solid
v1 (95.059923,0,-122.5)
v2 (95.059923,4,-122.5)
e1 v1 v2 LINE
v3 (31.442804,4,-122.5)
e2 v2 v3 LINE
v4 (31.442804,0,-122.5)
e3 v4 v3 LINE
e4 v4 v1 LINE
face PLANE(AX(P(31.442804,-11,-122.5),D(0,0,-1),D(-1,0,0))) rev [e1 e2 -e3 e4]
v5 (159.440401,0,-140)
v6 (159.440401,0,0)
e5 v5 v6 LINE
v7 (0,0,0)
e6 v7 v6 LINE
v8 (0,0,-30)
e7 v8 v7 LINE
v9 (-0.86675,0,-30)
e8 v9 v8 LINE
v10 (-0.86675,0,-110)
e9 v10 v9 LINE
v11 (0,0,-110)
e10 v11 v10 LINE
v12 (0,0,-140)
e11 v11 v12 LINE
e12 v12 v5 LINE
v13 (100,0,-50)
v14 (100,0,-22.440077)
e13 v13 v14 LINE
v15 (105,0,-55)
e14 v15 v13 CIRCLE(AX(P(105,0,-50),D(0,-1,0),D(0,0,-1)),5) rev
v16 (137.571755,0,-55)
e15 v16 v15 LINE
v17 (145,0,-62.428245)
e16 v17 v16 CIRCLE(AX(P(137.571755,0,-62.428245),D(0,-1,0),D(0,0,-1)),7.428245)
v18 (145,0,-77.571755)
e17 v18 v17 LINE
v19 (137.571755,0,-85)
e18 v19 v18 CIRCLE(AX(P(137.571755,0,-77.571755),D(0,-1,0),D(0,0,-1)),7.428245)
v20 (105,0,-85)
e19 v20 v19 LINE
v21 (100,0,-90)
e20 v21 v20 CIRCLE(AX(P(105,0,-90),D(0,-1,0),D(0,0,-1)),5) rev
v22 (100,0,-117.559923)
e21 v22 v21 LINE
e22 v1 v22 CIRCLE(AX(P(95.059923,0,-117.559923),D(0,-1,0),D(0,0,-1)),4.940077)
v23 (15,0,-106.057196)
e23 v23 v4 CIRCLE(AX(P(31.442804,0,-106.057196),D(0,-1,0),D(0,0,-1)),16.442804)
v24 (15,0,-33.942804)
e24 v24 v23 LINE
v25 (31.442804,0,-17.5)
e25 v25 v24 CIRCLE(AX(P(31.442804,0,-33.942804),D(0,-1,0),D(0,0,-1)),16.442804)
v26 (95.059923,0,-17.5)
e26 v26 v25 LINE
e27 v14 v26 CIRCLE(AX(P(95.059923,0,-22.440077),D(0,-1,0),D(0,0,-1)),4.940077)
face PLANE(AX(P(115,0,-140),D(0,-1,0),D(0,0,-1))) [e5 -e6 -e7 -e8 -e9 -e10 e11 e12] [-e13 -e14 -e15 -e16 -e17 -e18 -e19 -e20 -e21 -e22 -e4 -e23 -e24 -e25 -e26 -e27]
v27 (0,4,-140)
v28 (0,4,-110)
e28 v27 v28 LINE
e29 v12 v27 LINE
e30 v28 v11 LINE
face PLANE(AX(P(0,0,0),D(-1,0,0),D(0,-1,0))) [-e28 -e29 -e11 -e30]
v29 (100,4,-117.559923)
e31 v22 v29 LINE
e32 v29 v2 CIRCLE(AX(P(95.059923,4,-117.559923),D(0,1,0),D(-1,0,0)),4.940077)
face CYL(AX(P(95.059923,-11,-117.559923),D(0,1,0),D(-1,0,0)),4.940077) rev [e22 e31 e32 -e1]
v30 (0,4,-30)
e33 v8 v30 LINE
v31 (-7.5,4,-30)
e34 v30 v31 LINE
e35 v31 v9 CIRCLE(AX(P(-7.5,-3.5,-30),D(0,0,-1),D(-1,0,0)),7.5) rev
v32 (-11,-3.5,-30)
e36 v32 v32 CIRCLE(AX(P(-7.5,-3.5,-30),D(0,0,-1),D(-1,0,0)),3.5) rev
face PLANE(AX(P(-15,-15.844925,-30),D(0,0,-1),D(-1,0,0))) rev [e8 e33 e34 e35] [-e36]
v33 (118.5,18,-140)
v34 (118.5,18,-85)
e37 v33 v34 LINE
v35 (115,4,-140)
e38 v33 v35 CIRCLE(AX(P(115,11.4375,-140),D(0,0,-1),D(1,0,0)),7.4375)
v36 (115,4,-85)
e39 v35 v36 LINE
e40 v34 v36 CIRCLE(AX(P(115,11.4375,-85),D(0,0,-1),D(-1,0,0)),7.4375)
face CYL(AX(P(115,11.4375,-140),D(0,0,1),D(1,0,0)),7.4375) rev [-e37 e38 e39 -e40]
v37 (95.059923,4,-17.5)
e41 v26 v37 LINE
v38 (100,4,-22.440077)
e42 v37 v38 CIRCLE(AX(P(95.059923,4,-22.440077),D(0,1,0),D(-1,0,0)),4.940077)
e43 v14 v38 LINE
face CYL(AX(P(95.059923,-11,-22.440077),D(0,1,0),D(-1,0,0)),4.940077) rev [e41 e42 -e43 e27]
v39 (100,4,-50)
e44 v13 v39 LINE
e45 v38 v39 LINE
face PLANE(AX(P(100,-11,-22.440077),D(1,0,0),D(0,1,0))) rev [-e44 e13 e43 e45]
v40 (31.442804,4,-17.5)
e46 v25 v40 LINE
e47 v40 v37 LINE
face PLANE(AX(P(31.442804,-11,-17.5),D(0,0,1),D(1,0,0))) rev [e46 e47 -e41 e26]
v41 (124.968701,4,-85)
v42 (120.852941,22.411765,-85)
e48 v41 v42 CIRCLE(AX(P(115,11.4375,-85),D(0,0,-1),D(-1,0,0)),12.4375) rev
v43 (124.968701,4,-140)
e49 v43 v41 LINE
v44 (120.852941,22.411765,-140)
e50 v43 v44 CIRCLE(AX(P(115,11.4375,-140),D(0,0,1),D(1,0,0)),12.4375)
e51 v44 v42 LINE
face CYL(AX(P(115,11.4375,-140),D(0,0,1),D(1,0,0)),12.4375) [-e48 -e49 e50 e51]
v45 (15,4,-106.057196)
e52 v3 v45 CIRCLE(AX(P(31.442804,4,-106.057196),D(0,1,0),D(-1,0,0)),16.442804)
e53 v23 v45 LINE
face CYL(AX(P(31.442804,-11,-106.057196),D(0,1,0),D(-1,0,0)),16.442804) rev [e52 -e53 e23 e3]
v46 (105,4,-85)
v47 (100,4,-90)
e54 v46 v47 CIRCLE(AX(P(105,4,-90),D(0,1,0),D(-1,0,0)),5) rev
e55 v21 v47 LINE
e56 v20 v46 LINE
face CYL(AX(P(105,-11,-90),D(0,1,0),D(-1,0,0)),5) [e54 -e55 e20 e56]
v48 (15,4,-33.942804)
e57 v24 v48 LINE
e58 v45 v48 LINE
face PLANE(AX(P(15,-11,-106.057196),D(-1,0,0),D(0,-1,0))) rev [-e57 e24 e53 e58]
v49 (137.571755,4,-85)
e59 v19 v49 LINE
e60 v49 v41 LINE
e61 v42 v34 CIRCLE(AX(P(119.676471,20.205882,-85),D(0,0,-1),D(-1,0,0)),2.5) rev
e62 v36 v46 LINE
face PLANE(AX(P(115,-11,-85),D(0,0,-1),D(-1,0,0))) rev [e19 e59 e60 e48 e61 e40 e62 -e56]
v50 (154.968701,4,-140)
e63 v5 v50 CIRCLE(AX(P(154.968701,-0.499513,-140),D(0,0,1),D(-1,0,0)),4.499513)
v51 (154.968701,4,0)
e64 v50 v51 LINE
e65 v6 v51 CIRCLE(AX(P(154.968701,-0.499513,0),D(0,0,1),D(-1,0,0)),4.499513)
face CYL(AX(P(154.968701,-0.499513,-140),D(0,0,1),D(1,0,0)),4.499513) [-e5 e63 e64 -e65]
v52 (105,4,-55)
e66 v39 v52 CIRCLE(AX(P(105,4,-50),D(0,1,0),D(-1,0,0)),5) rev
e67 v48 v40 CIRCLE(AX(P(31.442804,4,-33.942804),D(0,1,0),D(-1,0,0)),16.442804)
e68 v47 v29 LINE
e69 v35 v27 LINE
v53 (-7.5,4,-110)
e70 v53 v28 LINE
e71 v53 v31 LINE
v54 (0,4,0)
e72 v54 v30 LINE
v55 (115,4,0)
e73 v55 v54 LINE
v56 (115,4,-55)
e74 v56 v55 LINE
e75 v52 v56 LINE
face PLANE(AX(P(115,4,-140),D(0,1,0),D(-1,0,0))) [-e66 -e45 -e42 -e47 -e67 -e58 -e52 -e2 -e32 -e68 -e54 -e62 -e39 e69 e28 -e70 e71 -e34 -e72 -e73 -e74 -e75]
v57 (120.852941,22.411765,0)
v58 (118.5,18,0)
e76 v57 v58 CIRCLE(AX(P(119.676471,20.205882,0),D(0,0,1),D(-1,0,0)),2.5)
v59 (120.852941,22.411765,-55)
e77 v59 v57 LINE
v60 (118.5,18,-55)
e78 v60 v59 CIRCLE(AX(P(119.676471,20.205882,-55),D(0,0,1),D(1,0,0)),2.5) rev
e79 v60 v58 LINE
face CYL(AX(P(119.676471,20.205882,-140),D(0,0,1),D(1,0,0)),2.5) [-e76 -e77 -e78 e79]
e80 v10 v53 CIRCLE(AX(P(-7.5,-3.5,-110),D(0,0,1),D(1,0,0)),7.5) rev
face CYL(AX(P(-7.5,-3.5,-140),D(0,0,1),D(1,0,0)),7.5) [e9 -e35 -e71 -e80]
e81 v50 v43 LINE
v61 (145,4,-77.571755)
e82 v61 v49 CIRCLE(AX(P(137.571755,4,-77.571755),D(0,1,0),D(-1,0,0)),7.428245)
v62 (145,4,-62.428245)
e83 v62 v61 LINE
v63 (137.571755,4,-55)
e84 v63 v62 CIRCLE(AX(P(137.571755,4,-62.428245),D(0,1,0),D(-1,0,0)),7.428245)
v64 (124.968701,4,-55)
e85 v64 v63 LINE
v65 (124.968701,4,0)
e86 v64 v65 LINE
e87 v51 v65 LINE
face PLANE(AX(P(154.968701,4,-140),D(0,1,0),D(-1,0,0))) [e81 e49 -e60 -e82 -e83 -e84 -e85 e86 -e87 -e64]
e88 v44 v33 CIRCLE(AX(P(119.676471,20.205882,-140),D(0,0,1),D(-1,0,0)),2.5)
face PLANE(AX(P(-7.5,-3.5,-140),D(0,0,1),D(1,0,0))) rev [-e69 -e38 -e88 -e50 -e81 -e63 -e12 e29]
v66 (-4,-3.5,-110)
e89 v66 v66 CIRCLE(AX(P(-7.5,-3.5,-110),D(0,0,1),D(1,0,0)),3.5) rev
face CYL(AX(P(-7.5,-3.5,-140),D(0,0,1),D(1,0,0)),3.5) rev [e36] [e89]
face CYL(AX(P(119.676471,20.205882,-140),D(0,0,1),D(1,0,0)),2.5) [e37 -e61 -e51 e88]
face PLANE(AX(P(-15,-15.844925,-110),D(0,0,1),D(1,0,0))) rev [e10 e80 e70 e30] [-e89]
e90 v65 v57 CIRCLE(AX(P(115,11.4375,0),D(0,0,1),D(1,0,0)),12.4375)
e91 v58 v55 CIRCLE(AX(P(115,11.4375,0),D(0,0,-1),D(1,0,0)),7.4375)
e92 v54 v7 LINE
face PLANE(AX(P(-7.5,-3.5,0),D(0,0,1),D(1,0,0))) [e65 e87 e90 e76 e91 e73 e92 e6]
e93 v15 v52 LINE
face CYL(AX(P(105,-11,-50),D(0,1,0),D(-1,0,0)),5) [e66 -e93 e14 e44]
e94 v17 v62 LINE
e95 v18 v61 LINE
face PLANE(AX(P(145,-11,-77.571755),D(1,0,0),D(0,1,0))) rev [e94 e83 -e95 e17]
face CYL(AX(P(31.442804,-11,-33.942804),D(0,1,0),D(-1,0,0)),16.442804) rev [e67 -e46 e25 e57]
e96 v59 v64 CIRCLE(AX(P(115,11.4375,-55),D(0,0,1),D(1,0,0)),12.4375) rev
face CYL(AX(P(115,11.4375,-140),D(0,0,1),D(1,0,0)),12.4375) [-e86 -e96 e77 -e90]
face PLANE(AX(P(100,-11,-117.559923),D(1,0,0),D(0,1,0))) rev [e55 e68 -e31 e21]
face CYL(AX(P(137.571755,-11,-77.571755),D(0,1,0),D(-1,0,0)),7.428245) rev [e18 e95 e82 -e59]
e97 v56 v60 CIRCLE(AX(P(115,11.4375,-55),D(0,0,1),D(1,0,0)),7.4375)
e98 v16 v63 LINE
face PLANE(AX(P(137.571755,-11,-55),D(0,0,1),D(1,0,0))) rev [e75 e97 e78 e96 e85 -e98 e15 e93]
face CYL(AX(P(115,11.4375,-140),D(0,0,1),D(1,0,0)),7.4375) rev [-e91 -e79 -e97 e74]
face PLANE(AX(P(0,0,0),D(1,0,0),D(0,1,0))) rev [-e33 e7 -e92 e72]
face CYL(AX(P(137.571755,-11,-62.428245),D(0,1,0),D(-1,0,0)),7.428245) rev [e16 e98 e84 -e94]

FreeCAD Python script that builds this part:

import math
import FreeCAD as App
import Part
import Sketcher

V = App.Vector


def add_polygon(sketch, points):
    """Adds a closed chain of lines whose ends are joined by coincident constraints."""
    first, n = sketch.GeometryCount, len(points)
    for a, b in zip(points, points[1:] + points[:1]):
        sketch.addGeometry(Part.LineSegment(App.Vector(*a, 0), App.Vector(*b, 0)), False)
    for i in range(n):
        sketch.addConstraint(Sketcher.Constraint("Coincident", first + i, 2, first + (i + 1) % n, 1))

doc = App.newDocument("Part")
body = doc.addObject("PartDesign::Body", "Body")

sketch1 = body.newObject("Sketcher::SketchObject", "Sketch")
sketch1.AttachmentSupport = (doc.getObject("XY_Plane"), [""])
sketch1.MapMode = "FlatFace"
sketch1.addGeometry(Part.LineSegment(V(155, 4, 0), V(125, 4, 0)), False)
sketch1.addGeometry(Part.ArcOfCircle(Part.Circle(V(115, 11.4, 0), V(0, 0, 1), 12.4), math.radians(-37), math.radians(62)), False)
sketch1.addGeometry(Part.ArcOfCircle(Part.Circle(V(119.7, 20.2, 0), V(0, 0, 1), 2.5), math.radians(62), math.radians(242)), False)
sketch1.addGeometry(Part.ArcOfCircle(Part.Circle(V(115, 11.4, 0), V(0, 0, 1), 7.4), math.radians(-90), math.radians(62)), False)
sketch1.addGeometry(Part.LineSegment(V(115, 4, 0), V(-7.5, 4, 0)), False)
sketch1.addGeometry(Part.ArcOfCircle(Part.Circle(V(-7.5, -3.5, 0), V(0, 0, 1), 7.5), math.radians(90), math.radians(388)), False)
sketch1.addGeometry(Part.LineSegment(V(-0.9, 0, 0), V(159.4, 0, 0)), False)
sketch1.addGeometry(Part.ArcOfCircle(Part.Circle(V(155, -0.5, 0), V(0, 0, 1), 4.5), math.radians(6), math.radians(90)), False)
sketch1.addGeometry(Part.Circle(V(-7.5, -3.5, 0), V(0, 0, 1), 3.5), False)
sketch1.addConstraint(Sketcher.Constraint("Coincident", 0, 2, 1, 1))
sketch1.addConstraint(Sketcher.Constraint("Tangent", 1, 2, 2, 1))
sketch1.addConstraint(Sketcher.Constraint("Tangent", 2, 2, 3, 2))
sketch1.addConstraint(Sketcher.Constraint("Tangent", 3, 1, 4, 1))
sketch1.addConstraint(Sketcher.Constraint("Tangent", 4, 2, 5, 1))
sketch1.addConstraint(Sketcher.Constraint("Coincident", 5, 2, 6, 1))
sketch1.addConstraint(Sketcher.Constraint("Coincident", 6, 2, 7, 1))
sketch1.addConstraint(Sketcher.Constraint("Tangent", 7, 2, 0, 1))
sketch1.addConstraint(Sketcher.Constraint("Horizontal", 0))
sketch1.addConstraint(Sketcher.Constraint("Horizontal", 4))
sketch1.addConstraint(Sketcher.Constraint("Horizontal", 6))
sketch1.addConstraint(Sketcher.Constraint("Coincident", 3, 3, 1, 3))
sketch1.addConstraint(Sketcher.Constraint("Coincident", 8, 3, 5, 3))
sketch1.addConstraint(Sketcher.Constraint("PointOnObject", 5, 2, -1))
sketch1.addConstraint(Sketcher.Constraint("Horizontal", 0, 2, 3, 1))
sketch1.addConstraint(Sketcher.Constraint("Diameter", 8, 7.0))
sketch1.addConstraint(Sketcher.Constraint("Radius", 2, 2.5))
sketch1.addConstraint(Sketcher.Constraint("Radius", 5, 7.5))
sketch1.addConstraint(Sketcher.Constraint("DistanceX", 0, 2, 0, 1, 30.0))
sketch1.addConstraint(Sketcher.Constraint("DistanceX", 4, 2, 4, 1, 122.5))
sketch1.addConstraint(Sketcher.Constraint("DistanceX", -1, 1, 1, 3, 115.0))
sketch1.addConstraint(Sketcher.Constraint("DistanceY", -1, 1, 0, 2, 4.0))
sketch1.addConstraint(Sketcher.Constraint("DistanceY", -1, 1, 2, 2, 18.0))
sketch1.addConstraint(Sketcher.Constraint("DistanceX", -1, 1, 2, 2, 118.5))
sketch1.addConstraint(Sketcher.Constraint("Radius", 7, 4.499513))
pad1 = body.newObject("PartDesign::Pad", "Pad")
pad1.Profile = sketch1
pad1.Length = 140
pad1.Reversed = True

sketch2 = body.newObject("Sketcher::SketchObject", "Sketch001")
sketch2.AttachmentSupport = (doc.getObject("YZ_Plane"), [""])
sketch2.MapMode = "FlatFace"
add_polygon(sketch2, [(12, 0), (-16, 0), (-16, -30), (12, -30)])
add_polygon(sketch2, [(12, -110), (-16, -110), (-16, -140), (12, -140)])
sketch2.addConstraint(Sketcher.Constraint("Horizontal", 0))
sketch2.addConstraint(Sketcher.Constraint("Vertical", 1))
sketch2.addConstraint(Sketcher.Constraint("Horizontal", 2))
sketch2.addConstraint(Sketcher.Constraint("Vertical", 3))
sketch2.addConstraint(Sketcher.Constraint("Horizontal", 4))
sketch2.addConstraint(Sketcher.Constraint("Vertical", 5))
sketch2.addConstraint(Sketcher.Constraint("Horizontal", 6))
sketch2.addConstraint(Sketcher.Constraint("Vertical", 7))
sketch2.addConstraint(Sketcher.Constraint("PointOnObject", 0, 2, -1))
sketch2.addConstraint(Sketcher.Constraint("Vertical", 1, 2, 4, 2))
sketch2.addConstraint(Sketcher.Constraint("Vertical", 3, 2, 6, 2))
sketch2.addConstraint(Sketcher.Constraint("Equal", 3, 5))
sketch2.addConstraint(Sketcher.Constraint("DistanceY", 1, 2, 1, 1, 30.0))
sketch2.addConstraint(Sketcher.Constraint("DistanceY", 4, 2, -1, 1, 110.0))
sketch2.addConstraint(Sketcher.Constraint("DistanceX", -1, 1, 2, 2, 11.5))
sketch2.addConstraint(Sketcher.Constraint("DistanceX", 0, 2, 0, 1, 27.344925))
pocket1 = body.newObject("PartDesign::Pocket", "Pocket")
pocket1.Profile = sketch2
pocket1.Type = "ThroughAll"

sketch3 = body.newObject("Sketcher::SketchObject", "Sketch002")
sketch3.AttachmentSupport = (doc.getObject("XZ_Plane"), [""])
sketch3.MapMode = "FlatFace"
sketch3.AttachmentOffset = App.Placement(V(0, 0, -4), App.Rotation())
sketch3.addGeometry(Part.LineSegment(V(15, -106.1, 0), V(15, -33.9, 0)), False)
sketch3.addGeometry(Part.ArcOfCircle(Part.Circle(V(31.4, -33.9, 0), V(0, 0, 1), 16.4), math.radians(90), math.radians(180)), False)
sketch3.addGeometry(Part.LineSegment(V(31.4, -17.5, 0), V(95.1, -17.5, 0)), False)
sketch3.addGeometry(Part.ArcOfCircle(Part.Circle(V(95.1, -22.4, 0), V(0, 0, 1), 4.9), math.radians(0), math.radians(90)), False)
sketch3.addGeometry(Part.LineSegment(V(100, -22.4, 0), V(100, -50, 0)), False)
sketch3.addGeometry(Part.ArcOfCircle(Part.Circle(V(105, -50, 0), V(0, 0, 1), 5), math.radians(180), math.radians(270)), False)
sketch3.addGeometry(Part.LineSegment(V(105, -55, 0), V(137.6, -55, 0)), False)
sketch3.addGeometry(Part.ArcOfCircle(Part.Circle(V(137.6, -62.4, 0), V(0, 0, 1), 7.4), math.radians(0), math.radians(90)), False)
sketch3.addGeometry(Part.LineSegment(V(145, -62.4, 0), V(145, -77.6, 0)), False)
sketch3.addGeometry(Part.ArcOfCircle(Part.Circle(V(137.6, -77.6, 0), V(0, 0, 1), 7.4), math.radians(-90), math.radians(0)), False)
sketch3.addGeometry(Part.LineSegment(V(137.6, -85, 0), V(105, -85, 0)), False)
sketch3.addGeometry(Part.ArcOfCircle(Part.Circle(V(105, -90, 0), V(0, 0, 1), 5), math.radians(90), math.radians(180)), False)
sketch3.addGeometry(Part.LineSegment(V(100, -90, 0), V(100, -117.6, 0)), False)
sketch3.addGeometry(Part.ArcOfCircle(Part.Circle(V(95.1, -117.6, 0), V(0, 0, 1), 4.9), math.radians(-90), math.radians(0)), False)
sketch3.addGeometry(Part.LineSegment(V(95.1, -122.5, 0), V(31.4, -122.5, 0)), False)
sketch3.addGeometry(Part.ArcOfCircle(Part.Circle(V(31.4, -106.1, 0), V(0, 0, 1), 16.4), math.radians(180), math.radians(270)), False)
sketch3.addConstraint(Sketcher.Constraint("Tangent", 0, 2, 1, 2))
sketch3.addConstraint(Sketcher.Constraint("Tangent", 1, 1, 2, 1))
sketch3.addConstraint(Sketcher.Constraint("Tangent", 2, 2, 3, 2))
sketch3.addConstraint(Sketcher.Constraint("Tangent", 3, 1, 4, 1))
sketch3.addConstraint(Sketcher.Constraint("Tangent", 4, 2, 5, 1))
sketch3.addConstraint(Sketcher.Constraint("Tangent", 5, 2, 6, 1))
sketch3.addConstraint(Sketcher.Constraint("Tangent", 6, 2, 7, 2))
sketch3.addConstraint(Sketcher.Constraint("Tangent", 7, 1, 8, 1))
sketch3.addConstraint(Sketcher.Constraint("Tangent", 8, 2, 9, 2))
sketch3.addConstraint(Sketcher.Constraint("Tangent", 9, 1, 10, 1))
sketch3.addConstraint(Sketcher.Constraint("Tangent", 10, 2, 11, 1))
sketch3.addConstraint(Sketcher.Constraint("Tangent", 11, 2, 12, 1))
sketch3.addConstraint(Sketcher.Constraint("Tangent", 12, 2, 13, 2))
sketch3.addConstraint(Sketcher.Constraint("Tangent", 13, 1, 14, 1))
sketch3.addConstraint(Sketcher.Constraint("Tangent", 14, 2, 15, 2))
sketch3.addConstraint(Sketcher.Constraint("Tangent", 15, 1, 0, 1))
sketch3.addConstraint(Sketcher.Constraint("Vertical", 0))
sketch3.addConstraint(Sketcher.Constraint("Horizontal", 2))
sketch3.addConstraint(Sketcher.Constraint("Vertical", 4))
sketch3.addConstraint(Sketcher.Constraint("Horizontal", 6))
sketch3.addConstraint(Sketcher.Constraint("Vertical", 8))
sketch3.addConstraint(Sketcher.Constraint("Horizontal", 10))
sketch3.addConstraint(Sketcher.Constraint("Vertical", 12))
sketch3.addConstraint(Sketcher.Constraint("Horizontal", 14))
sketch3.addConstraint(Sketcher.Constraint("Equal", 7, 9))
sketch3.addConstraint(Sketcher.Constraint("Equal", 5, 11))
sketch3.addConstraint(Sketcher.Constraint("Equal", 3, 13))
sketch3.addConstraint(Sketcher.Constraint("Equal", 1, 15))
sketch3.addConstraint(Sketcher.Constraint("Vertical", 5, 3, 11, 3))
sketch3.addConstraint(Sketcher.Constraint("Equal", 4, 12))
sketch3.addConstraint(Sketcher.Constraint("Radius", 5, 5.0))
sketch3.addConstraint(Sketcher.Constraint("DistanceX", -1, 1, 5, 3, 105.0))
sketch3.addConstraint(Sketcher.Constraint("DistanceY", 5, 3, -1, 1, 50.0))
sketch3.addConstraint(Sketcher.Constraint("DistanceY", 11, 3, -1, 1, 90.0))
sketch3.addConstraint(Sketcher.Constraint("DistanceX", -1, 1, 0, 2, 15.0))
sketch3.addConstraint(Sketcher.Constraint("DistanceX", -1, 1, 7, 1, 145.0))
sketch3.addConstraint(Sketcher.Constraint("DistanceY", 1, 1, -1, 1, 17.5))
sketch3.addConstraint(Sketcher.Constraint("Radius", 1, 16.442804))
sketch3.addConstraint(Sketcher.Constraint("Radius", 3, 4.940077))
sketch3.addConstraint(Sketcher.Constraint("Radius", 7, 7.428245))
pocket2 = body.newObject("PartDesign::Pocket", "Pocket001")
pocket2.Profile = sketch3
pocket2.Type = "ThroughAll"
pocket2.Midplane = True

doc.recompute()
